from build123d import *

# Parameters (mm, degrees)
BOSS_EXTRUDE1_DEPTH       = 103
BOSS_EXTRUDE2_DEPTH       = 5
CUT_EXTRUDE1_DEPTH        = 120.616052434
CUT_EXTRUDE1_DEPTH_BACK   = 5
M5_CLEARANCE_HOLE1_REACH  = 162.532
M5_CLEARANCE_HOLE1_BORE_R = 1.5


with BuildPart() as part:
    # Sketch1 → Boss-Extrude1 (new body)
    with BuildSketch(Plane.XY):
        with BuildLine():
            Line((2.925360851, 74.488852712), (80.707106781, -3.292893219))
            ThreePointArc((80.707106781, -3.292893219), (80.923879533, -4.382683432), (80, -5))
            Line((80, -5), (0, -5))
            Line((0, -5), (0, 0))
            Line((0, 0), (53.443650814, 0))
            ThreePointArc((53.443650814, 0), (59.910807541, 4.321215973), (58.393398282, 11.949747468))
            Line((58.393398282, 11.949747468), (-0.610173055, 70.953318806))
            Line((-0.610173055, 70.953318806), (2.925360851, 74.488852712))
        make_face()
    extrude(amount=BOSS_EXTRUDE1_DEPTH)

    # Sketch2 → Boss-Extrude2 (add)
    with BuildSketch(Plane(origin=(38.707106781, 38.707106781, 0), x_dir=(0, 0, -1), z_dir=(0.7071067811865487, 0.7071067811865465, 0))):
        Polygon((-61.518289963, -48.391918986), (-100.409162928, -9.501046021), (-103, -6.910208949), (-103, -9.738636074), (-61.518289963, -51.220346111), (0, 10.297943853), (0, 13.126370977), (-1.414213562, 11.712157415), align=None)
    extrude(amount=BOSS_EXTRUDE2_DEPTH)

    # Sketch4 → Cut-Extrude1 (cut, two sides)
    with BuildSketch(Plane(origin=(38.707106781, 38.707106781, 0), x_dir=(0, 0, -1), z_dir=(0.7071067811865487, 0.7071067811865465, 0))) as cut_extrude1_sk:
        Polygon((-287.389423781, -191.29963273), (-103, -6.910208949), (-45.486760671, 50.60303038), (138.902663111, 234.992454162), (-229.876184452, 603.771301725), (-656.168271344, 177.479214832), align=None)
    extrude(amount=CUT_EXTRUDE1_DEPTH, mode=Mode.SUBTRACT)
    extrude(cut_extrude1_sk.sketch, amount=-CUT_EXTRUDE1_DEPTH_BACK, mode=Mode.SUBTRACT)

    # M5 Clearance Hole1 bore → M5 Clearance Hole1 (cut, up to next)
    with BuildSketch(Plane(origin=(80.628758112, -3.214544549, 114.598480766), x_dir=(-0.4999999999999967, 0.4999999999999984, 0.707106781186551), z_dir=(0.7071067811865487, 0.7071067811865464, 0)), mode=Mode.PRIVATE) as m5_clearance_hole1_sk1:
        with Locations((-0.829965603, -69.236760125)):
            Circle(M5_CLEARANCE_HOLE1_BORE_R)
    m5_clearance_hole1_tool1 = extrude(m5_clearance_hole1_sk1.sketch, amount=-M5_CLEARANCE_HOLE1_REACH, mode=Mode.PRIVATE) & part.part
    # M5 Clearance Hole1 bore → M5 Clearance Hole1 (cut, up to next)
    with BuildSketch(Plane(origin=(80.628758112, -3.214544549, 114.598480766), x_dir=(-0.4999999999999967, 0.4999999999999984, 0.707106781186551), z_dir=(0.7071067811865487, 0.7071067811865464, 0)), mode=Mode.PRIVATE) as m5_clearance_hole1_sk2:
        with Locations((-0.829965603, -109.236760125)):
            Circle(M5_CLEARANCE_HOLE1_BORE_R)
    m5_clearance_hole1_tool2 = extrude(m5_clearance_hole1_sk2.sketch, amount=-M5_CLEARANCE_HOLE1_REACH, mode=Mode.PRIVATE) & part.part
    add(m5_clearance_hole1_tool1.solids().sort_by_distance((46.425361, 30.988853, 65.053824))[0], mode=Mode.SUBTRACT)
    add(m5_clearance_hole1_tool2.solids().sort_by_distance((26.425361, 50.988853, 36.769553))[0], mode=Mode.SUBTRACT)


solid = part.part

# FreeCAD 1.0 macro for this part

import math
import FreeCAD as App
import Part
import Sketcher

V = App.Vector
Q = App.Units.Quantity


def add_polygon(sketch, points):
    """Adds a closed chain of lines whose ends are joined by coincident constraints."""
    first, n = sketch.GeometryCount, len(points)
    for a, b in zip(points, points[1:] + points[:1]):
        sketch.addGeometry(Part.LineSegment(App.Vector(*a, 0), App.Vector(*b, 0)), False)
    for i in range(n):
        sketch.addConstraint(Sketcher.Constraint("Coincident", first + i, 2, first + (i + 1) % n, 1))

doc = App.newDocument("Part")
body = doc.addObject("PartDesign::Body", "Body")

sketch1 = doc.addObject("Sketcher::SketchObject", "Sketch")
body.addObject(sketch1)
sketch1.AttachmentSupport = (doc.XY_Plane, [""])
sketch1.MapMode = "FlatFace"
sketch1.addGeometry([
    Part.LineSegment(V(80.7, -3.3, 0), V(2.9, 74.5, 0)),
    Part.LineSegment(V(2.9, 74.5, 0), V(-0.6, 71, 0)),
    Part.LineSegment(V(-0.6, 71, 0), V(58.4, 11.9, 0)),
    Part.ArcOfCircle(Part.Circle(V(53.4, 7, 0), V(0, 0, 1), 7), math.radians(-90), math.radians(45)),
    Part.LineSegment(V(53.4, 0, 0), V(0, 0, 0)),
    Part.LineSegment(V(0, 0, 0), V(0, -5, 0)),
    Part.LineSegment(V(0, -5, 0), V(80, -5, 0)),
    Part.ArcOfCircle(Part.Circle(V(80, -4, 0), V(0, 0, 1), 1), math.radians(-90), math.radians(45)),
], False)
sketch1.addConstraint([
    Sketcher.Constraint("Coincident", 0, 2, 1, 1),
    Sketcher.Constraint("Coincident", 1, 2, 2, 1),
    Sketcher.Constraint("Tangent", 2, 2, 3, 2),
    Sketcher.Constraint("Tangent", 3, 1, 4, 1),
    Sketcher.Constraint("Coincident", 4, 2, 5, 1),
    Sketcher.Constraint("Coincident", 5, 2, 6, 1),
    Sketcher.Constraint("Tangent", 6, 2, 7, 1),
    Sketcher.Constraint("Tangent", 7, 2, 0, 1),
    Sketcher.Constraint("Horizontal", 4),
    Sketcher.Constraint("Vertical", 5),
    Sketcher.Constraint("Horizontal", 6),
    Sketcher.Constraint("Coincident", 4, 2, -1, 1),
    Sketcher.Constraint("Perpendicular", 0, 1),
    Sketcher.Constraint("Perpendicular", 1, 2),
    Sketcher.Constraint("Radius", 3, Q("7 mm")),
    Sketcher.Constraint("Radius", 7, Q("1 mm")),
    Sketcher.Constraint("DistanceX", 6, 1, 6, 2, Q("80 mm")),
    Sketcher.Constraint("DistanceY", 5, 2, 5, 1, Q("5 mm")),
    Sketcher.Constraint("Angle", 0, Q("135 deg")),
    Sketcher.Constraint("Distance", 0, Q("110 mm")),
    Sketcher.Constraint("Distance", 1, Q("5 mm")),
])
pad1 = doc.addObject("PartDesign::Pad", "Pad")
body.addObject(pad1)
pad1.Profile = sketch1
pad1.Length = 103

sketch2 = doc.addObject("Sketcher::SketchObject", "Sketch001")
body.addObject(sketch2)
sketch2.Placement = App.Placement(V(38.707107, 38.707107, 0), App.Rotation(V(0, 0, -1), V(-0.707106781, 0.707106781, 0), V(0.707106781, 0.707106781, 0), "ZXY"))
add_polygon(sketch2, [(-61.5, -48.4), (-103, -6.9), (-103, -9.7), (-61.5, -51.2), (0, 10.3), (0, 13.1)])
sketch2.addConstraint([
    Sketcher.Constraint("Vertical", 1),
    Sketcher.Constraint("Vertical", 4),
    Sketcher.Constraint("PointOnObject", 3, 2, -2),
    Sketcher.Constraint("Parallel", 0, 2),
    Sketcher.Constraint("Perpendicular", 2, 3),
    Sketcher.Constraint("Parallel", 3, 5),
    Sketcher.Constraint("Vertical", 2, 2, 5, 2),
    Sketcher.Constraint("Angle", 0, Q("135 deg")),
    Sketcher.Constraint("Distance", 3, Q("87 mm")),
    Sketcher.Constraint("DistanceX", 0, 2, -1, 1, Q("103 mm")),
    Sketcher.Constraint("DistanceY", 1, 2, 1, 1, Q("2.828427 mm")),
    Sketcher.Constraint("DistanceY", 0, 2, -1, 1, Q("6.910209 mm")),
])
pad2 = doc.addObject("PartDesign::Pad", "Pad001")
body.addObject(pad2)
pad2.Profile = sketch2
pad2.Length = 5

sketch3 = doc.addObject("Sketcher::SketchObject", "Sketch002")
body.addObject(sketch3)
sketch3.Placement = App.Placement(V(38.707107, 38.707107, 0), App.Rotation(V(0, 0, -1), V(-0.707106781, 0.707106781, 0), V(0.707106781, 0.707106781, 0), "ZXY"))
add_polygon(sketch3, [(-287, -191), (139, 235), (-230, 604), (-656, 177)])
sketch3.addConstraint([
    Sketcher.Constraint("Perpendicular", 0, 1),
    Sketcher.Constraint("Perpendicular", 1, 2),
    Sketcher.Constraint("Perpendicular", 2, 3),
    Sketcher.Constraint("Angle", 0, Q("45 deg")),
    Sketcher.Constraint("DistanceY", -1, 1, 1, 2, Q("603.771301 mm")),
    Sketcher.Constraint("Distance", 0, Q("602.868051 mm")),
    Sketcher.Constraint("DistanceX", 2, 2, -1, 1, Q("656.168271 mm")),
    Sketcher.Constraint("DistanceY", 2, 2, 0, 2, Q("57.513239 mm")),
])
pocket1 = doc.addObject("PartDesign::Pocket", "Pocket")
body.addObject(pocket1)
pocket1.Profile = sketch3
pocket1.Type = "TwoLengths"
pocket1.Length = 120.616052
pocket1.Length2 = 5
pocket1.Reversed = True

sketch4 = doc.addObject("Sketcher::SketchObject", "Sketch003")
body.addObject(sketch4)
sketch4.Placement = App.Placement(V(80.628758, -3.214545, 114.598481), App.Rotation(V(-0.5, 0.5, 0.707106781), V(0.5, -0.5, 0.707106781), V(0.707106781, 0.707106781, 0), "ZXY"))
sketch4.addGeometry(Part.Circle(V(-0.8, -69.2, 0), V(0, 0, 1), 1.5), False)
sketch4.addConstraint([
    Sketcher.Constraint("Diameter", 0, Q("3 mm")),
    Sketcher.Constraint("DistanceY", 0, 3, -1, 1, Q("69.23676 mm")),
    Sketcher.Constraint("DistanceX", 0, 3, -1, 1, Q("0.829966 mm")),
])
pocket2 = doc.addObject("PartDesign::Pocket", "Pocket001")
body.addObject(pocket2)
pocket2.Profile = sketch4
pocket2.Type = "UpToFirst"

sketch5 = doc.addObject("Sketcher::SketchObject", "Sketch004")
body.addObject(sketch5)
sketch5.Placement = App.Placement(V(80.628758, -3.214545, 114.598481), App.Rotation(V(-0.5, 0.5, 0.707106781), V(0.5, -0.5, 0.707106781), V(0.707106781, 0.707106781, 0), "ZXY"))
sketch5.addGeometry(Part.Circle(V(-0.8, -109.2, 0), V(0, 0, 1), 1.5), False)
sketch5.addConstraint([
    Sketcher.Constraint("Diameter", 0, Q("3 mm")),
    Sketcher.Constraint("DistanceY", 0, 3, -1, 1, Q("109.23676 mm")),
    Sketcher.Constraint("DistanceX", 0, 3, -1, 1, Q("0.829966 mm")),
])
pocket3 = doc.addObject("PartDesign::Pocket", "Pocket002")
body.addObject(pocket3)
pocket3.Profile = sketch5
pocket3.Type = "UpToFirst"

doc.recompute()
